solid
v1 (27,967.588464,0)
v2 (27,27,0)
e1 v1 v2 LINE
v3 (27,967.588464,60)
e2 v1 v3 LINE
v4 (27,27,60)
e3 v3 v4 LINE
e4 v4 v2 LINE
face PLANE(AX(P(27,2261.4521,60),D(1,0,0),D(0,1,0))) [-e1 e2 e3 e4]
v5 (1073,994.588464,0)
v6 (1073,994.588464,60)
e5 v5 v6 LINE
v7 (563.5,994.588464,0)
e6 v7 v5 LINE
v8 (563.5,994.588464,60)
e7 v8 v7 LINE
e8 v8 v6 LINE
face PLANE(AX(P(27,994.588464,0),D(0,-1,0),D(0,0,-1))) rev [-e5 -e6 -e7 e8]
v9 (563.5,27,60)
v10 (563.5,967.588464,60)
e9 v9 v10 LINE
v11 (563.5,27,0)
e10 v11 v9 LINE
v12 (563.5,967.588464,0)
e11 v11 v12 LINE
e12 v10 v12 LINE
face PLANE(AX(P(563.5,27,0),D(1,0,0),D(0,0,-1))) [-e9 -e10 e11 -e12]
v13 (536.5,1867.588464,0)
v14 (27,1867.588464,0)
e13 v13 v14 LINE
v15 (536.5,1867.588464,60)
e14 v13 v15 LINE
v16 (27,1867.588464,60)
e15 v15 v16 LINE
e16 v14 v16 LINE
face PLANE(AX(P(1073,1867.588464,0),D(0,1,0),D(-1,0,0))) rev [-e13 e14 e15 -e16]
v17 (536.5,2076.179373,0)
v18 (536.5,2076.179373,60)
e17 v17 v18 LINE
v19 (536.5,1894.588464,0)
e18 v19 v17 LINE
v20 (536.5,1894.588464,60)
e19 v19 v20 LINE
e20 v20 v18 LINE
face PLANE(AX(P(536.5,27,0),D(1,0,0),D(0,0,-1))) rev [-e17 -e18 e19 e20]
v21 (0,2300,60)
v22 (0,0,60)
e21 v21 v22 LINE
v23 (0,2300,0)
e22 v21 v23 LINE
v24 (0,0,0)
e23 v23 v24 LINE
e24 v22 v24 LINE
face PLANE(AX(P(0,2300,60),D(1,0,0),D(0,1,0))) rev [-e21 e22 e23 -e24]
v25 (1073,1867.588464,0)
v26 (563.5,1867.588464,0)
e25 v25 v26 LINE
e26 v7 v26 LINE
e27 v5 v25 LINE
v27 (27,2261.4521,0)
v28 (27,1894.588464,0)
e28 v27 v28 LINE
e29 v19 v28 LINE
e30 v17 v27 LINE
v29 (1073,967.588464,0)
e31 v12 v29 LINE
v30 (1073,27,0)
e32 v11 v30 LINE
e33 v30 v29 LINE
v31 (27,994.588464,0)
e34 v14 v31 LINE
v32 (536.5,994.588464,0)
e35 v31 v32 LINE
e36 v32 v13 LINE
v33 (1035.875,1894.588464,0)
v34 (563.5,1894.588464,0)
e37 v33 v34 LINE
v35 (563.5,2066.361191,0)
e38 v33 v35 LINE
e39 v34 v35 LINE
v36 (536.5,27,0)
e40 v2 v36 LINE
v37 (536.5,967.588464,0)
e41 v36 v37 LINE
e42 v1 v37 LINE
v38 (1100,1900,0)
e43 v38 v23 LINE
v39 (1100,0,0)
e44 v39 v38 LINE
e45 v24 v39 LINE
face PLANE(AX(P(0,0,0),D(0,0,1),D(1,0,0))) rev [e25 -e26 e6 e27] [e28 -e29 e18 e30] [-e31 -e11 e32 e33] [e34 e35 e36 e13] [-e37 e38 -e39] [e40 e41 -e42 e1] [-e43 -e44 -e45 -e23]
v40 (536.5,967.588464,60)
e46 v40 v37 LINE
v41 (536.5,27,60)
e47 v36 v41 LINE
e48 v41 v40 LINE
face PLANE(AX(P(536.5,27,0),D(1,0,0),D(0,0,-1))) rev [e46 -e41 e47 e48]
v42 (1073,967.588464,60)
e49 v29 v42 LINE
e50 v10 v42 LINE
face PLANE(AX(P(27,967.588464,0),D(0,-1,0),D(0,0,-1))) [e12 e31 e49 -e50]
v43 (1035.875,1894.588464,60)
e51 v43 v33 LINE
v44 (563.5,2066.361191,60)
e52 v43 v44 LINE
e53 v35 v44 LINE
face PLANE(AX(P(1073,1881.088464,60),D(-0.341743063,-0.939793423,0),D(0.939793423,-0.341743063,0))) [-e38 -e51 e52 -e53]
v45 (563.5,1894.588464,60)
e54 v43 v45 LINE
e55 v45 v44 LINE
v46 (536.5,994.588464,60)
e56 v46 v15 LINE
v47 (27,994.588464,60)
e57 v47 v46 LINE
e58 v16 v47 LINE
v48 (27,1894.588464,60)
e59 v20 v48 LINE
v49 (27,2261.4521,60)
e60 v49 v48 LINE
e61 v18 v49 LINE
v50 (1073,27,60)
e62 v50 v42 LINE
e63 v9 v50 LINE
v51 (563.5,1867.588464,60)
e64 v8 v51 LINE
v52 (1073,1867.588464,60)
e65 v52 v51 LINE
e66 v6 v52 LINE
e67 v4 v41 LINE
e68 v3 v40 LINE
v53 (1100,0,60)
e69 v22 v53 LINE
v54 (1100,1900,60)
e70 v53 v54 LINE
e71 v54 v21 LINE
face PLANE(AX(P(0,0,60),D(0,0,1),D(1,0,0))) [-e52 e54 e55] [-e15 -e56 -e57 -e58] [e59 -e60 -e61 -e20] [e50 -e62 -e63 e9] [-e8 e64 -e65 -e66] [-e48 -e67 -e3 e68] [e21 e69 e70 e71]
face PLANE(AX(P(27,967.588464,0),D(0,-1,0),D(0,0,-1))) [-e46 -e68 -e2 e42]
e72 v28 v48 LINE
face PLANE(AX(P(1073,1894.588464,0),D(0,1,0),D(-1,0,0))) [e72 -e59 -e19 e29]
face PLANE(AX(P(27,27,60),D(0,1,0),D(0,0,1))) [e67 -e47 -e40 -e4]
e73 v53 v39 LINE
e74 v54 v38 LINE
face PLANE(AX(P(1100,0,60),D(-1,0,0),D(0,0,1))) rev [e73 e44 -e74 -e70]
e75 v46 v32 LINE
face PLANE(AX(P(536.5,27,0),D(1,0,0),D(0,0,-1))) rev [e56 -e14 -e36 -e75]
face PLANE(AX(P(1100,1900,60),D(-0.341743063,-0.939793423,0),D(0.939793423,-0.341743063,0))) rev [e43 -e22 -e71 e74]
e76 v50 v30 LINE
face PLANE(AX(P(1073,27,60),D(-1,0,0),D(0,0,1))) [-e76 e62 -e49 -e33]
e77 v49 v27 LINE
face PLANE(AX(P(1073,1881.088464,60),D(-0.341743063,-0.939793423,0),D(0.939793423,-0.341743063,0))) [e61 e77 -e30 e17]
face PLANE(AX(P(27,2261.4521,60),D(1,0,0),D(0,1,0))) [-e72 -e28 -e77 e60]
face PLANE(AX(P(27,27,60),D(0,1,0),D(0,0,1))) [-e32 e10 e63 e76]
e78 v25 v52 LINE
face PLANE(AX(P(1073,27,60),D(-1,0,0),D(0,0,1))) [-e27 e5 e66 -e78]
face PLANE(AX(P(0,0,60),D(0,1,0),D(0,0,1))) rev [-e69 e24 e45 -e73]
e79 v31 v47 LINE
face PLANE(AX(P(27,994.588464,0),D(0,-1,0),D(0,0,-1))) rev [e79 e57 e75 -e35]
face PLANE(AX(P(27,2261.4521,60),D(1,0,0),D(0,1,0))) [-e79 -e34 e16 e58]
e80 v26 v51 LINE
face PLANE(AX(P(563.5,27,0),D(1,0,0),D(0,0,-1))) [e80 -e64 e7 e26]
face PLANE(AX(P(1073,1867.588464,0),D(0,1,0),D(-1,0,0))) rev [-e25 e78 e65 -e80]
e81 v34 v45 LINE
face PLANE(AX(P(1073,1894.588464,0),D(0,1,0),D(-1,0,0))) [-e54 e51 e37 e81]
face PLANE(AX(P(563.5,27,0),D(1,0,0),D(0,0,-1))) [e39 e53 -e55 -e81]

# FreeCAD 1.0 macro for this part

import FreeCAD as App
import Part
import Sketcher

V = App.Vector
Q = App.Units.Quantity

doc = App.newDocument("Part")
body = doc.addObject("PartDesign::Body", "Body")

sketch1 = body.newObject("Sketcher::SketchObject", "Sketch")
sketch1.AttachmentSupport = (doc.getObject("XY_Plane"), [""])
sketch1.MapMode = "FlatFace"
sketch1.addGeometry(Part.LineSegment(V(0, 0, 0), V(1100, 0, 0)), False)
sketch1.addGeometry(Part.LineSegment(V(1100, 0, 0), V(1100, 1900, 0)), False)
sketch1.addGeometry(Part.LineSegment(V(1100, 1900, 0), V(0, 2300, 0)), False)
sketch1.addGeometry(Part.LineSegment(V(0, 2300, 0), V(0, 0, 0)), False)
sketch1.addGeometry(Part.LineSegment(V(1073, 27, 0), V(27, 27, 0)), False)
sketch1.addGeometry(Part.LineSegment(V(27, 27, 0), V(27, 2261.4521, 0)), False)
sketch1.addGeometry(Part.LineSegment(V(27, 2261.4521, 0), V(1073, 1881.088464, 0)), False)
sketch1.addGeometry(Part.LineSegment(V(1073, 1881.088464, 0), V(1073, 27, 0)), False)
sketch1.addConstraint(Sketcher.Constraint("Coincident", 0, 2, 1, 1))
sketch1.addConstraint(Sketcher.Constraint("Coincident", 1, 2, 2, 1))
sketch1.addConstraint(Sketcher.Constraint("Coincident", 2, 2, 3, 1))
sketch1.addConstraint(Sketcher.Constraint("Coincident", 3, 2, 0, 1))
sketch1.addConstraint(Sketcher.Constraint("Coincident", 4, 2, 5, 1))
sketch1.addConstraint(Sketcher.Constraint("Coincident", 5, 2, 6, 1))
sketch1.addConstraint(Sketcher.Constraint("Coincident", 6, 2, 7, 1))
sketch1.addConstraint(Sketcher.Constraint("Coincident", 7, 2, 4, 1))
sketch1.addConstraint(Sketcher.Constraint("Horizontal", 0))
sketch1.addConstraint(Sketcher.Constraint("Vertical", 1))
sketch1.addConstraint(Sketcher.Constraint("Vertical", 3))
sketch1.addConstraint(Sketcher.Constraint("Horizontal", 4))
sketch1.addConstraint(Sketcher.Constraint("Vertical", 5))
sketch1.addConstraint(Sketcher.Constraint("Vertical", 7))
sketch1.addConstraint(Sketcher.Constraint("Coincident", 3, 2, -1, 1))
sketch1.addConstraint(Sketcher.Constraint("Parallel", 2, 6))
sketch1.addConstraint(Sketcher.Constraint("DistanceX", 0, 1, 0, 2, Q("1100 mm")))
sketch1.addConstraint(Sketcher.Constraint("DistanceX", 4, 2, 4, 1, Q("1046 mm")))
sketch1.addConstraint(Sketcher.Constraint("DistanceY", 1, 1, 1, 2, Q("1900 mm")))
sketch1.addConstraint(Sketcher.Constraint("DistanceY", 3, 2, 3, 1, Q("2300 mm")))
sketch1.addConstraint(Sketcher.Constraint("DistanceX", -1, 1, 4, 2, Q("27 mm")))
sketch1.addConstraint(Sketcher.Constraint("DistanceY", -1, 1, 4, 2, Q("27 mm")))
sketch1.addConstraint(Sketcher.Constraint("DistanceY", 5, 1, 5, 2, Q("2234.4521 mm")))
pad1 = body.newObject("PartDesign::Pad", "Pad")
pad1.Profile = sketch1
pad1.Length = 60

sketch2 = body.newObject("Sketcher::SketchObject", "Sketch001")
sketch2.AttachmentSupport = (doc.getObject("XY_Plane"), [""])
sketch2.MapMode = "FlatFace"
sketch2.AttachmentOffset = App.Placement(V(0, 0, 60), App.Rotation())
sketch2.addGeometry(Part.LineSegment(V(536.5, 967.588464, 0), V(536.5, 27, 0)), False)
sketch2.addGeometry(Part.LineSegment(V(536.5, 27, 0), V(563.5, 27, 0)), False)
sketch2.addGeometry(Part.LineSegment(V(563.5, 27, 0), V(563.5, 967.588464, 0)), False)
sketch2.addGeometry(Part.LineSegment(V(563.5, 967.588464, 0), V(1073, 967.588464, 0)), False)
sketch2.addGeometry(Part.LineSegment(V(1073, 967.588464, 0), V(1073, 994.588464, 0)), False)
sketch2.addGeometry(Part.LineSegment(V(1073, 994.588464, 0), V(563.5, 994.588464, 0)), False)
sketch2.addGeometry(Part.LineSegment(V(563.5, 994.588464, 0), V(563.5, 1867.588464, 0)), False)
sketch2.addGeometry(Part.LineSegment(V(563.5, 1867.588464, 0), V(1073, 1867.588464, 0)), False)
sketch2.addGeometry(Part.LineSegment(V(1073, 1867.588464, 0), V(1073, 1894.588464, 0)), False)
sketch2.addGeometry(Part.LineSegment(V(1073, 1894.588464, 0), V(563.5, 1894.588464, 0)), False)
sketch2.addGeometry(Part.LineSegment(V(563.5, 1894.588464, 0), V(563.5, 2090, 0)), False)
sketch2.addGeometry(Part.LineSegment(V(563.5, 2090, 0), V(536.5, 2090, 0)), False)
sketch2.addGeometry(Part.LineSegment(V(536.5, 2090, 0), V(536.5, 1894.588464, 0)), False)
sketch2.addGeometry(Part.LineSegment(V(536.5, 1894.588464, 0), V(27, 1894.588464, 0)), False)
sketch2.addGeometry(Part.LineSegment(V(27, 1894.588464, 0), V(27, 1867.588464, 0)), False)
sketch2.addGeometry(Part.LineSegment(V(27, 1867.588464, 0), V(536.5, 1867.588464, 0)), False)
sketch2.addGeometry(Part.LineSegment(V(536.5, 1867.588464, 0), V(536.5, 994.588464, 0)), False)
sketch2.addGeometry(Part.LineSegment(V(536.5, 994.588464, 0), V(27, 994.588464, 0)), False)
sketch2.addGeometry(Part.LineSegment(V(27, 994.588464, 0), V(27, 967.588464, 0)), False)
sketch2.addGeometry(Part.LineSegment(V(27, 967.588464, 0), V(536.5, 967.588464, 0)), False)
sketch2.addConstraint(Sketcher.Constraint("Coincident", 0, 2, 1, 1))
sketch2.addConstraint(Sketcher.Constraint("Coincident", 1, 2, 2, 1))
sketch2.addConstraint(Sketcher.Constraint("Coincident", 2, 2, 3, 1))
sketch2.addConstraint(Sketcher.Constraint("Coincident", 3, 2, 4, 1))
sketch2.addConstraint(Sketcher.Constraint("Coincident", 4, 2, 5, 1))
sketch2.addConstraint(Sketcher.Constraint("Coincident", 5, 2, 6, 1))
sketch2.addConstraint(Sketcher.Constraint("Coincident", 6, 2, 7, 1))
sketch2.addConstraint(Sketcher.Constraint("Coincident", 7, 2, 8, 1))
sketch2.addConstraint(Sketcher.Constraint("Coincident", 8, 2, 9, 1))
sketch2.addConstraint(Sketcher.Constraint("Coincident", 9, 2, 10, 1))
sketch2.addConstraint(Sketcher.Constraint("Coincident", 10, 2, 11, 1))
sketch2.addConstraint(Sketcher.Constraint("Coincident", 11, 2, 12, 1))
sketch2.addConstraint(Sketcher.Constraint("Coincident", 12, 2, 13, 1))
sketch2.addConstraint(Sketcher.Constraint("Coincident", 13, 2, 14, 1))
sketch2.addConstraint(Sketcher.Constraint("Coincident", 14, 2, 15, 1))
sketch2.addConstraint(Sketcher.Constraint("Coincident", 15, 2, 16, 1))
sketch2.addConstraint(Sketcher.Constraint("Coincident", 16, 2, 17, 1))
sketch2.addConstraint(Sketcher.Constraint("Coincident", 17, 2, 18, 1))
sketch2.addConstraint(Sketcher.Constraint("Coincident", 18, 2, 19, 1))
sketch2.addConstraint(Sketcher.Constraint("Coincident", 19, 2, 0, 1))
sketch2.addConstraint(Sketcher.Constraint("Vertical", 0))
sketch2.addConstraint(Sketcher.Constraint("Horizontal", 1))
sketch2.addConstraint(Sketcher.Constraint("Vertical", 2))
sketch2.addConstraint(Sketcher.Constraint("Horizontal", 3))
sketch2.addConstraint(Sketcher.Constraint("Vertical", 4))
sketch2.addConstraint(Sketcher.Constraint("Horizontal", 5))
sketch2.addConstraint(Sketcher.Constraint("Vertical", 6))
sketch2.addConstraint(Sketcher.Constraint("Horizontal", 7))
sketch2.addConstraint(Sketcher.Constraint("Vertical", 8))
sketch2.addConstraint(Sketcher.Constraint("Horizontal", 9))
sketch2.addConstraint(Sketcher.Constraint("Vertical", 10))
sketch2.addConstraint(Sketcher.Constraint("Horizontal", 11))
sketch2.addConstraint(Sketcher.Constraint("Vertical", 12))
sketch2.addConstraint(Sketcher.Constraint("Horizontal", 13))
sketch2.addConstraint(Sketcher.Constraint("Vertical", 14))
sketch2.addConstraint(Sketcher.Constraint("Horizontal", 15))
sketch2.addConstraint(Sketcher.Constraint("Vertical", 16))
sketch2.addConstraint(Sketcher.Constraint("Horizontal", 17))
sketch2.addConstraint(Sketcher.Constraint("Vertical", 18))
sketch2.addConstraint(Sketcher.Constraint("Horizontal", 19))
sketch2.addConstraint(Sketcher.Constraint("Horizontal", 9, 2, 12, 2))
sketch2.addConstraint(Sketcher.Constraint("Horizontal", 7, 2, 14, 2))
sketch2.addConstraint(Sketcher.Constraint("Horizontal", 5, 2, 16, 2))
sketch2.addConstraint(Sketcher.Constraint("Horizontal", 3, 2, 18, 2))
sketch2.addConstraint(Sketcher.Constraint("Vertical", 2, 2, 5, 2))
sketch2.addConstraint(Sketcher.Constraint("Vertical", 4, 2, 7, 2))
sketch2.addConstraint(Sketcher.Constraint("Vertical", 6, 2, 9, 2))
sketch2.addConstraint(Sketcher.Constraint("Vertical", 0, 2, 11, 2))
sketch2.addConstraint(Sketcher.Constraint("Vertical", 12, 2, 15, 2))
sketch2.addConstraint(Sketcher.Constraint("Vertical", 14, 2, 17, 2))
sketch2.addConstraint(Sketcher.Constraint("Equal", 9, 13))
sketch2.addConstraint(Sketcher.Constraint("Equal", 11, 4))
sketch2.addConstraint(Sketcher.Constraint("Equal", 4, 8))
sketch2.addConstraint(Sketcher.Constraint("DistanceX", 1, 1, 1, 2, Q("27 mm")))
sketch2.addConstraint(Sketcher.Constraint("DistanceY", 6, 1, 6, 2, Q("873 mm")))
sketch2.addConstraint(Sketcher.Constraint("DistanceX", 3, 1, 3, 2, Q("509.5 mm")))
sketch2.addConstraint(Sketcher.Constraint("DistanceY", -1, 1, 0, 2, Q("27 mm")))
sketch2.addConstraint(Sketcher.Constraint("DistanceX", -1, 1, 3, 2, Q("1073 mm")))
sketch2.addConstraint(Sketcher.Constraint("DistanceY", -1, 1, 10, 2, Q("2090 mm")))
sketch2.addConstraint(Sketcher.Constraint("DistanceY", 0, 2, 0, 1, Q("940.588464 mm")))
pad2 = body.newObject("PartDesign::Pad", "Pad001")
pad2.Profile = sketch2
pad2.Length = 60
pad2.Reversed = True

doc.recompute()
